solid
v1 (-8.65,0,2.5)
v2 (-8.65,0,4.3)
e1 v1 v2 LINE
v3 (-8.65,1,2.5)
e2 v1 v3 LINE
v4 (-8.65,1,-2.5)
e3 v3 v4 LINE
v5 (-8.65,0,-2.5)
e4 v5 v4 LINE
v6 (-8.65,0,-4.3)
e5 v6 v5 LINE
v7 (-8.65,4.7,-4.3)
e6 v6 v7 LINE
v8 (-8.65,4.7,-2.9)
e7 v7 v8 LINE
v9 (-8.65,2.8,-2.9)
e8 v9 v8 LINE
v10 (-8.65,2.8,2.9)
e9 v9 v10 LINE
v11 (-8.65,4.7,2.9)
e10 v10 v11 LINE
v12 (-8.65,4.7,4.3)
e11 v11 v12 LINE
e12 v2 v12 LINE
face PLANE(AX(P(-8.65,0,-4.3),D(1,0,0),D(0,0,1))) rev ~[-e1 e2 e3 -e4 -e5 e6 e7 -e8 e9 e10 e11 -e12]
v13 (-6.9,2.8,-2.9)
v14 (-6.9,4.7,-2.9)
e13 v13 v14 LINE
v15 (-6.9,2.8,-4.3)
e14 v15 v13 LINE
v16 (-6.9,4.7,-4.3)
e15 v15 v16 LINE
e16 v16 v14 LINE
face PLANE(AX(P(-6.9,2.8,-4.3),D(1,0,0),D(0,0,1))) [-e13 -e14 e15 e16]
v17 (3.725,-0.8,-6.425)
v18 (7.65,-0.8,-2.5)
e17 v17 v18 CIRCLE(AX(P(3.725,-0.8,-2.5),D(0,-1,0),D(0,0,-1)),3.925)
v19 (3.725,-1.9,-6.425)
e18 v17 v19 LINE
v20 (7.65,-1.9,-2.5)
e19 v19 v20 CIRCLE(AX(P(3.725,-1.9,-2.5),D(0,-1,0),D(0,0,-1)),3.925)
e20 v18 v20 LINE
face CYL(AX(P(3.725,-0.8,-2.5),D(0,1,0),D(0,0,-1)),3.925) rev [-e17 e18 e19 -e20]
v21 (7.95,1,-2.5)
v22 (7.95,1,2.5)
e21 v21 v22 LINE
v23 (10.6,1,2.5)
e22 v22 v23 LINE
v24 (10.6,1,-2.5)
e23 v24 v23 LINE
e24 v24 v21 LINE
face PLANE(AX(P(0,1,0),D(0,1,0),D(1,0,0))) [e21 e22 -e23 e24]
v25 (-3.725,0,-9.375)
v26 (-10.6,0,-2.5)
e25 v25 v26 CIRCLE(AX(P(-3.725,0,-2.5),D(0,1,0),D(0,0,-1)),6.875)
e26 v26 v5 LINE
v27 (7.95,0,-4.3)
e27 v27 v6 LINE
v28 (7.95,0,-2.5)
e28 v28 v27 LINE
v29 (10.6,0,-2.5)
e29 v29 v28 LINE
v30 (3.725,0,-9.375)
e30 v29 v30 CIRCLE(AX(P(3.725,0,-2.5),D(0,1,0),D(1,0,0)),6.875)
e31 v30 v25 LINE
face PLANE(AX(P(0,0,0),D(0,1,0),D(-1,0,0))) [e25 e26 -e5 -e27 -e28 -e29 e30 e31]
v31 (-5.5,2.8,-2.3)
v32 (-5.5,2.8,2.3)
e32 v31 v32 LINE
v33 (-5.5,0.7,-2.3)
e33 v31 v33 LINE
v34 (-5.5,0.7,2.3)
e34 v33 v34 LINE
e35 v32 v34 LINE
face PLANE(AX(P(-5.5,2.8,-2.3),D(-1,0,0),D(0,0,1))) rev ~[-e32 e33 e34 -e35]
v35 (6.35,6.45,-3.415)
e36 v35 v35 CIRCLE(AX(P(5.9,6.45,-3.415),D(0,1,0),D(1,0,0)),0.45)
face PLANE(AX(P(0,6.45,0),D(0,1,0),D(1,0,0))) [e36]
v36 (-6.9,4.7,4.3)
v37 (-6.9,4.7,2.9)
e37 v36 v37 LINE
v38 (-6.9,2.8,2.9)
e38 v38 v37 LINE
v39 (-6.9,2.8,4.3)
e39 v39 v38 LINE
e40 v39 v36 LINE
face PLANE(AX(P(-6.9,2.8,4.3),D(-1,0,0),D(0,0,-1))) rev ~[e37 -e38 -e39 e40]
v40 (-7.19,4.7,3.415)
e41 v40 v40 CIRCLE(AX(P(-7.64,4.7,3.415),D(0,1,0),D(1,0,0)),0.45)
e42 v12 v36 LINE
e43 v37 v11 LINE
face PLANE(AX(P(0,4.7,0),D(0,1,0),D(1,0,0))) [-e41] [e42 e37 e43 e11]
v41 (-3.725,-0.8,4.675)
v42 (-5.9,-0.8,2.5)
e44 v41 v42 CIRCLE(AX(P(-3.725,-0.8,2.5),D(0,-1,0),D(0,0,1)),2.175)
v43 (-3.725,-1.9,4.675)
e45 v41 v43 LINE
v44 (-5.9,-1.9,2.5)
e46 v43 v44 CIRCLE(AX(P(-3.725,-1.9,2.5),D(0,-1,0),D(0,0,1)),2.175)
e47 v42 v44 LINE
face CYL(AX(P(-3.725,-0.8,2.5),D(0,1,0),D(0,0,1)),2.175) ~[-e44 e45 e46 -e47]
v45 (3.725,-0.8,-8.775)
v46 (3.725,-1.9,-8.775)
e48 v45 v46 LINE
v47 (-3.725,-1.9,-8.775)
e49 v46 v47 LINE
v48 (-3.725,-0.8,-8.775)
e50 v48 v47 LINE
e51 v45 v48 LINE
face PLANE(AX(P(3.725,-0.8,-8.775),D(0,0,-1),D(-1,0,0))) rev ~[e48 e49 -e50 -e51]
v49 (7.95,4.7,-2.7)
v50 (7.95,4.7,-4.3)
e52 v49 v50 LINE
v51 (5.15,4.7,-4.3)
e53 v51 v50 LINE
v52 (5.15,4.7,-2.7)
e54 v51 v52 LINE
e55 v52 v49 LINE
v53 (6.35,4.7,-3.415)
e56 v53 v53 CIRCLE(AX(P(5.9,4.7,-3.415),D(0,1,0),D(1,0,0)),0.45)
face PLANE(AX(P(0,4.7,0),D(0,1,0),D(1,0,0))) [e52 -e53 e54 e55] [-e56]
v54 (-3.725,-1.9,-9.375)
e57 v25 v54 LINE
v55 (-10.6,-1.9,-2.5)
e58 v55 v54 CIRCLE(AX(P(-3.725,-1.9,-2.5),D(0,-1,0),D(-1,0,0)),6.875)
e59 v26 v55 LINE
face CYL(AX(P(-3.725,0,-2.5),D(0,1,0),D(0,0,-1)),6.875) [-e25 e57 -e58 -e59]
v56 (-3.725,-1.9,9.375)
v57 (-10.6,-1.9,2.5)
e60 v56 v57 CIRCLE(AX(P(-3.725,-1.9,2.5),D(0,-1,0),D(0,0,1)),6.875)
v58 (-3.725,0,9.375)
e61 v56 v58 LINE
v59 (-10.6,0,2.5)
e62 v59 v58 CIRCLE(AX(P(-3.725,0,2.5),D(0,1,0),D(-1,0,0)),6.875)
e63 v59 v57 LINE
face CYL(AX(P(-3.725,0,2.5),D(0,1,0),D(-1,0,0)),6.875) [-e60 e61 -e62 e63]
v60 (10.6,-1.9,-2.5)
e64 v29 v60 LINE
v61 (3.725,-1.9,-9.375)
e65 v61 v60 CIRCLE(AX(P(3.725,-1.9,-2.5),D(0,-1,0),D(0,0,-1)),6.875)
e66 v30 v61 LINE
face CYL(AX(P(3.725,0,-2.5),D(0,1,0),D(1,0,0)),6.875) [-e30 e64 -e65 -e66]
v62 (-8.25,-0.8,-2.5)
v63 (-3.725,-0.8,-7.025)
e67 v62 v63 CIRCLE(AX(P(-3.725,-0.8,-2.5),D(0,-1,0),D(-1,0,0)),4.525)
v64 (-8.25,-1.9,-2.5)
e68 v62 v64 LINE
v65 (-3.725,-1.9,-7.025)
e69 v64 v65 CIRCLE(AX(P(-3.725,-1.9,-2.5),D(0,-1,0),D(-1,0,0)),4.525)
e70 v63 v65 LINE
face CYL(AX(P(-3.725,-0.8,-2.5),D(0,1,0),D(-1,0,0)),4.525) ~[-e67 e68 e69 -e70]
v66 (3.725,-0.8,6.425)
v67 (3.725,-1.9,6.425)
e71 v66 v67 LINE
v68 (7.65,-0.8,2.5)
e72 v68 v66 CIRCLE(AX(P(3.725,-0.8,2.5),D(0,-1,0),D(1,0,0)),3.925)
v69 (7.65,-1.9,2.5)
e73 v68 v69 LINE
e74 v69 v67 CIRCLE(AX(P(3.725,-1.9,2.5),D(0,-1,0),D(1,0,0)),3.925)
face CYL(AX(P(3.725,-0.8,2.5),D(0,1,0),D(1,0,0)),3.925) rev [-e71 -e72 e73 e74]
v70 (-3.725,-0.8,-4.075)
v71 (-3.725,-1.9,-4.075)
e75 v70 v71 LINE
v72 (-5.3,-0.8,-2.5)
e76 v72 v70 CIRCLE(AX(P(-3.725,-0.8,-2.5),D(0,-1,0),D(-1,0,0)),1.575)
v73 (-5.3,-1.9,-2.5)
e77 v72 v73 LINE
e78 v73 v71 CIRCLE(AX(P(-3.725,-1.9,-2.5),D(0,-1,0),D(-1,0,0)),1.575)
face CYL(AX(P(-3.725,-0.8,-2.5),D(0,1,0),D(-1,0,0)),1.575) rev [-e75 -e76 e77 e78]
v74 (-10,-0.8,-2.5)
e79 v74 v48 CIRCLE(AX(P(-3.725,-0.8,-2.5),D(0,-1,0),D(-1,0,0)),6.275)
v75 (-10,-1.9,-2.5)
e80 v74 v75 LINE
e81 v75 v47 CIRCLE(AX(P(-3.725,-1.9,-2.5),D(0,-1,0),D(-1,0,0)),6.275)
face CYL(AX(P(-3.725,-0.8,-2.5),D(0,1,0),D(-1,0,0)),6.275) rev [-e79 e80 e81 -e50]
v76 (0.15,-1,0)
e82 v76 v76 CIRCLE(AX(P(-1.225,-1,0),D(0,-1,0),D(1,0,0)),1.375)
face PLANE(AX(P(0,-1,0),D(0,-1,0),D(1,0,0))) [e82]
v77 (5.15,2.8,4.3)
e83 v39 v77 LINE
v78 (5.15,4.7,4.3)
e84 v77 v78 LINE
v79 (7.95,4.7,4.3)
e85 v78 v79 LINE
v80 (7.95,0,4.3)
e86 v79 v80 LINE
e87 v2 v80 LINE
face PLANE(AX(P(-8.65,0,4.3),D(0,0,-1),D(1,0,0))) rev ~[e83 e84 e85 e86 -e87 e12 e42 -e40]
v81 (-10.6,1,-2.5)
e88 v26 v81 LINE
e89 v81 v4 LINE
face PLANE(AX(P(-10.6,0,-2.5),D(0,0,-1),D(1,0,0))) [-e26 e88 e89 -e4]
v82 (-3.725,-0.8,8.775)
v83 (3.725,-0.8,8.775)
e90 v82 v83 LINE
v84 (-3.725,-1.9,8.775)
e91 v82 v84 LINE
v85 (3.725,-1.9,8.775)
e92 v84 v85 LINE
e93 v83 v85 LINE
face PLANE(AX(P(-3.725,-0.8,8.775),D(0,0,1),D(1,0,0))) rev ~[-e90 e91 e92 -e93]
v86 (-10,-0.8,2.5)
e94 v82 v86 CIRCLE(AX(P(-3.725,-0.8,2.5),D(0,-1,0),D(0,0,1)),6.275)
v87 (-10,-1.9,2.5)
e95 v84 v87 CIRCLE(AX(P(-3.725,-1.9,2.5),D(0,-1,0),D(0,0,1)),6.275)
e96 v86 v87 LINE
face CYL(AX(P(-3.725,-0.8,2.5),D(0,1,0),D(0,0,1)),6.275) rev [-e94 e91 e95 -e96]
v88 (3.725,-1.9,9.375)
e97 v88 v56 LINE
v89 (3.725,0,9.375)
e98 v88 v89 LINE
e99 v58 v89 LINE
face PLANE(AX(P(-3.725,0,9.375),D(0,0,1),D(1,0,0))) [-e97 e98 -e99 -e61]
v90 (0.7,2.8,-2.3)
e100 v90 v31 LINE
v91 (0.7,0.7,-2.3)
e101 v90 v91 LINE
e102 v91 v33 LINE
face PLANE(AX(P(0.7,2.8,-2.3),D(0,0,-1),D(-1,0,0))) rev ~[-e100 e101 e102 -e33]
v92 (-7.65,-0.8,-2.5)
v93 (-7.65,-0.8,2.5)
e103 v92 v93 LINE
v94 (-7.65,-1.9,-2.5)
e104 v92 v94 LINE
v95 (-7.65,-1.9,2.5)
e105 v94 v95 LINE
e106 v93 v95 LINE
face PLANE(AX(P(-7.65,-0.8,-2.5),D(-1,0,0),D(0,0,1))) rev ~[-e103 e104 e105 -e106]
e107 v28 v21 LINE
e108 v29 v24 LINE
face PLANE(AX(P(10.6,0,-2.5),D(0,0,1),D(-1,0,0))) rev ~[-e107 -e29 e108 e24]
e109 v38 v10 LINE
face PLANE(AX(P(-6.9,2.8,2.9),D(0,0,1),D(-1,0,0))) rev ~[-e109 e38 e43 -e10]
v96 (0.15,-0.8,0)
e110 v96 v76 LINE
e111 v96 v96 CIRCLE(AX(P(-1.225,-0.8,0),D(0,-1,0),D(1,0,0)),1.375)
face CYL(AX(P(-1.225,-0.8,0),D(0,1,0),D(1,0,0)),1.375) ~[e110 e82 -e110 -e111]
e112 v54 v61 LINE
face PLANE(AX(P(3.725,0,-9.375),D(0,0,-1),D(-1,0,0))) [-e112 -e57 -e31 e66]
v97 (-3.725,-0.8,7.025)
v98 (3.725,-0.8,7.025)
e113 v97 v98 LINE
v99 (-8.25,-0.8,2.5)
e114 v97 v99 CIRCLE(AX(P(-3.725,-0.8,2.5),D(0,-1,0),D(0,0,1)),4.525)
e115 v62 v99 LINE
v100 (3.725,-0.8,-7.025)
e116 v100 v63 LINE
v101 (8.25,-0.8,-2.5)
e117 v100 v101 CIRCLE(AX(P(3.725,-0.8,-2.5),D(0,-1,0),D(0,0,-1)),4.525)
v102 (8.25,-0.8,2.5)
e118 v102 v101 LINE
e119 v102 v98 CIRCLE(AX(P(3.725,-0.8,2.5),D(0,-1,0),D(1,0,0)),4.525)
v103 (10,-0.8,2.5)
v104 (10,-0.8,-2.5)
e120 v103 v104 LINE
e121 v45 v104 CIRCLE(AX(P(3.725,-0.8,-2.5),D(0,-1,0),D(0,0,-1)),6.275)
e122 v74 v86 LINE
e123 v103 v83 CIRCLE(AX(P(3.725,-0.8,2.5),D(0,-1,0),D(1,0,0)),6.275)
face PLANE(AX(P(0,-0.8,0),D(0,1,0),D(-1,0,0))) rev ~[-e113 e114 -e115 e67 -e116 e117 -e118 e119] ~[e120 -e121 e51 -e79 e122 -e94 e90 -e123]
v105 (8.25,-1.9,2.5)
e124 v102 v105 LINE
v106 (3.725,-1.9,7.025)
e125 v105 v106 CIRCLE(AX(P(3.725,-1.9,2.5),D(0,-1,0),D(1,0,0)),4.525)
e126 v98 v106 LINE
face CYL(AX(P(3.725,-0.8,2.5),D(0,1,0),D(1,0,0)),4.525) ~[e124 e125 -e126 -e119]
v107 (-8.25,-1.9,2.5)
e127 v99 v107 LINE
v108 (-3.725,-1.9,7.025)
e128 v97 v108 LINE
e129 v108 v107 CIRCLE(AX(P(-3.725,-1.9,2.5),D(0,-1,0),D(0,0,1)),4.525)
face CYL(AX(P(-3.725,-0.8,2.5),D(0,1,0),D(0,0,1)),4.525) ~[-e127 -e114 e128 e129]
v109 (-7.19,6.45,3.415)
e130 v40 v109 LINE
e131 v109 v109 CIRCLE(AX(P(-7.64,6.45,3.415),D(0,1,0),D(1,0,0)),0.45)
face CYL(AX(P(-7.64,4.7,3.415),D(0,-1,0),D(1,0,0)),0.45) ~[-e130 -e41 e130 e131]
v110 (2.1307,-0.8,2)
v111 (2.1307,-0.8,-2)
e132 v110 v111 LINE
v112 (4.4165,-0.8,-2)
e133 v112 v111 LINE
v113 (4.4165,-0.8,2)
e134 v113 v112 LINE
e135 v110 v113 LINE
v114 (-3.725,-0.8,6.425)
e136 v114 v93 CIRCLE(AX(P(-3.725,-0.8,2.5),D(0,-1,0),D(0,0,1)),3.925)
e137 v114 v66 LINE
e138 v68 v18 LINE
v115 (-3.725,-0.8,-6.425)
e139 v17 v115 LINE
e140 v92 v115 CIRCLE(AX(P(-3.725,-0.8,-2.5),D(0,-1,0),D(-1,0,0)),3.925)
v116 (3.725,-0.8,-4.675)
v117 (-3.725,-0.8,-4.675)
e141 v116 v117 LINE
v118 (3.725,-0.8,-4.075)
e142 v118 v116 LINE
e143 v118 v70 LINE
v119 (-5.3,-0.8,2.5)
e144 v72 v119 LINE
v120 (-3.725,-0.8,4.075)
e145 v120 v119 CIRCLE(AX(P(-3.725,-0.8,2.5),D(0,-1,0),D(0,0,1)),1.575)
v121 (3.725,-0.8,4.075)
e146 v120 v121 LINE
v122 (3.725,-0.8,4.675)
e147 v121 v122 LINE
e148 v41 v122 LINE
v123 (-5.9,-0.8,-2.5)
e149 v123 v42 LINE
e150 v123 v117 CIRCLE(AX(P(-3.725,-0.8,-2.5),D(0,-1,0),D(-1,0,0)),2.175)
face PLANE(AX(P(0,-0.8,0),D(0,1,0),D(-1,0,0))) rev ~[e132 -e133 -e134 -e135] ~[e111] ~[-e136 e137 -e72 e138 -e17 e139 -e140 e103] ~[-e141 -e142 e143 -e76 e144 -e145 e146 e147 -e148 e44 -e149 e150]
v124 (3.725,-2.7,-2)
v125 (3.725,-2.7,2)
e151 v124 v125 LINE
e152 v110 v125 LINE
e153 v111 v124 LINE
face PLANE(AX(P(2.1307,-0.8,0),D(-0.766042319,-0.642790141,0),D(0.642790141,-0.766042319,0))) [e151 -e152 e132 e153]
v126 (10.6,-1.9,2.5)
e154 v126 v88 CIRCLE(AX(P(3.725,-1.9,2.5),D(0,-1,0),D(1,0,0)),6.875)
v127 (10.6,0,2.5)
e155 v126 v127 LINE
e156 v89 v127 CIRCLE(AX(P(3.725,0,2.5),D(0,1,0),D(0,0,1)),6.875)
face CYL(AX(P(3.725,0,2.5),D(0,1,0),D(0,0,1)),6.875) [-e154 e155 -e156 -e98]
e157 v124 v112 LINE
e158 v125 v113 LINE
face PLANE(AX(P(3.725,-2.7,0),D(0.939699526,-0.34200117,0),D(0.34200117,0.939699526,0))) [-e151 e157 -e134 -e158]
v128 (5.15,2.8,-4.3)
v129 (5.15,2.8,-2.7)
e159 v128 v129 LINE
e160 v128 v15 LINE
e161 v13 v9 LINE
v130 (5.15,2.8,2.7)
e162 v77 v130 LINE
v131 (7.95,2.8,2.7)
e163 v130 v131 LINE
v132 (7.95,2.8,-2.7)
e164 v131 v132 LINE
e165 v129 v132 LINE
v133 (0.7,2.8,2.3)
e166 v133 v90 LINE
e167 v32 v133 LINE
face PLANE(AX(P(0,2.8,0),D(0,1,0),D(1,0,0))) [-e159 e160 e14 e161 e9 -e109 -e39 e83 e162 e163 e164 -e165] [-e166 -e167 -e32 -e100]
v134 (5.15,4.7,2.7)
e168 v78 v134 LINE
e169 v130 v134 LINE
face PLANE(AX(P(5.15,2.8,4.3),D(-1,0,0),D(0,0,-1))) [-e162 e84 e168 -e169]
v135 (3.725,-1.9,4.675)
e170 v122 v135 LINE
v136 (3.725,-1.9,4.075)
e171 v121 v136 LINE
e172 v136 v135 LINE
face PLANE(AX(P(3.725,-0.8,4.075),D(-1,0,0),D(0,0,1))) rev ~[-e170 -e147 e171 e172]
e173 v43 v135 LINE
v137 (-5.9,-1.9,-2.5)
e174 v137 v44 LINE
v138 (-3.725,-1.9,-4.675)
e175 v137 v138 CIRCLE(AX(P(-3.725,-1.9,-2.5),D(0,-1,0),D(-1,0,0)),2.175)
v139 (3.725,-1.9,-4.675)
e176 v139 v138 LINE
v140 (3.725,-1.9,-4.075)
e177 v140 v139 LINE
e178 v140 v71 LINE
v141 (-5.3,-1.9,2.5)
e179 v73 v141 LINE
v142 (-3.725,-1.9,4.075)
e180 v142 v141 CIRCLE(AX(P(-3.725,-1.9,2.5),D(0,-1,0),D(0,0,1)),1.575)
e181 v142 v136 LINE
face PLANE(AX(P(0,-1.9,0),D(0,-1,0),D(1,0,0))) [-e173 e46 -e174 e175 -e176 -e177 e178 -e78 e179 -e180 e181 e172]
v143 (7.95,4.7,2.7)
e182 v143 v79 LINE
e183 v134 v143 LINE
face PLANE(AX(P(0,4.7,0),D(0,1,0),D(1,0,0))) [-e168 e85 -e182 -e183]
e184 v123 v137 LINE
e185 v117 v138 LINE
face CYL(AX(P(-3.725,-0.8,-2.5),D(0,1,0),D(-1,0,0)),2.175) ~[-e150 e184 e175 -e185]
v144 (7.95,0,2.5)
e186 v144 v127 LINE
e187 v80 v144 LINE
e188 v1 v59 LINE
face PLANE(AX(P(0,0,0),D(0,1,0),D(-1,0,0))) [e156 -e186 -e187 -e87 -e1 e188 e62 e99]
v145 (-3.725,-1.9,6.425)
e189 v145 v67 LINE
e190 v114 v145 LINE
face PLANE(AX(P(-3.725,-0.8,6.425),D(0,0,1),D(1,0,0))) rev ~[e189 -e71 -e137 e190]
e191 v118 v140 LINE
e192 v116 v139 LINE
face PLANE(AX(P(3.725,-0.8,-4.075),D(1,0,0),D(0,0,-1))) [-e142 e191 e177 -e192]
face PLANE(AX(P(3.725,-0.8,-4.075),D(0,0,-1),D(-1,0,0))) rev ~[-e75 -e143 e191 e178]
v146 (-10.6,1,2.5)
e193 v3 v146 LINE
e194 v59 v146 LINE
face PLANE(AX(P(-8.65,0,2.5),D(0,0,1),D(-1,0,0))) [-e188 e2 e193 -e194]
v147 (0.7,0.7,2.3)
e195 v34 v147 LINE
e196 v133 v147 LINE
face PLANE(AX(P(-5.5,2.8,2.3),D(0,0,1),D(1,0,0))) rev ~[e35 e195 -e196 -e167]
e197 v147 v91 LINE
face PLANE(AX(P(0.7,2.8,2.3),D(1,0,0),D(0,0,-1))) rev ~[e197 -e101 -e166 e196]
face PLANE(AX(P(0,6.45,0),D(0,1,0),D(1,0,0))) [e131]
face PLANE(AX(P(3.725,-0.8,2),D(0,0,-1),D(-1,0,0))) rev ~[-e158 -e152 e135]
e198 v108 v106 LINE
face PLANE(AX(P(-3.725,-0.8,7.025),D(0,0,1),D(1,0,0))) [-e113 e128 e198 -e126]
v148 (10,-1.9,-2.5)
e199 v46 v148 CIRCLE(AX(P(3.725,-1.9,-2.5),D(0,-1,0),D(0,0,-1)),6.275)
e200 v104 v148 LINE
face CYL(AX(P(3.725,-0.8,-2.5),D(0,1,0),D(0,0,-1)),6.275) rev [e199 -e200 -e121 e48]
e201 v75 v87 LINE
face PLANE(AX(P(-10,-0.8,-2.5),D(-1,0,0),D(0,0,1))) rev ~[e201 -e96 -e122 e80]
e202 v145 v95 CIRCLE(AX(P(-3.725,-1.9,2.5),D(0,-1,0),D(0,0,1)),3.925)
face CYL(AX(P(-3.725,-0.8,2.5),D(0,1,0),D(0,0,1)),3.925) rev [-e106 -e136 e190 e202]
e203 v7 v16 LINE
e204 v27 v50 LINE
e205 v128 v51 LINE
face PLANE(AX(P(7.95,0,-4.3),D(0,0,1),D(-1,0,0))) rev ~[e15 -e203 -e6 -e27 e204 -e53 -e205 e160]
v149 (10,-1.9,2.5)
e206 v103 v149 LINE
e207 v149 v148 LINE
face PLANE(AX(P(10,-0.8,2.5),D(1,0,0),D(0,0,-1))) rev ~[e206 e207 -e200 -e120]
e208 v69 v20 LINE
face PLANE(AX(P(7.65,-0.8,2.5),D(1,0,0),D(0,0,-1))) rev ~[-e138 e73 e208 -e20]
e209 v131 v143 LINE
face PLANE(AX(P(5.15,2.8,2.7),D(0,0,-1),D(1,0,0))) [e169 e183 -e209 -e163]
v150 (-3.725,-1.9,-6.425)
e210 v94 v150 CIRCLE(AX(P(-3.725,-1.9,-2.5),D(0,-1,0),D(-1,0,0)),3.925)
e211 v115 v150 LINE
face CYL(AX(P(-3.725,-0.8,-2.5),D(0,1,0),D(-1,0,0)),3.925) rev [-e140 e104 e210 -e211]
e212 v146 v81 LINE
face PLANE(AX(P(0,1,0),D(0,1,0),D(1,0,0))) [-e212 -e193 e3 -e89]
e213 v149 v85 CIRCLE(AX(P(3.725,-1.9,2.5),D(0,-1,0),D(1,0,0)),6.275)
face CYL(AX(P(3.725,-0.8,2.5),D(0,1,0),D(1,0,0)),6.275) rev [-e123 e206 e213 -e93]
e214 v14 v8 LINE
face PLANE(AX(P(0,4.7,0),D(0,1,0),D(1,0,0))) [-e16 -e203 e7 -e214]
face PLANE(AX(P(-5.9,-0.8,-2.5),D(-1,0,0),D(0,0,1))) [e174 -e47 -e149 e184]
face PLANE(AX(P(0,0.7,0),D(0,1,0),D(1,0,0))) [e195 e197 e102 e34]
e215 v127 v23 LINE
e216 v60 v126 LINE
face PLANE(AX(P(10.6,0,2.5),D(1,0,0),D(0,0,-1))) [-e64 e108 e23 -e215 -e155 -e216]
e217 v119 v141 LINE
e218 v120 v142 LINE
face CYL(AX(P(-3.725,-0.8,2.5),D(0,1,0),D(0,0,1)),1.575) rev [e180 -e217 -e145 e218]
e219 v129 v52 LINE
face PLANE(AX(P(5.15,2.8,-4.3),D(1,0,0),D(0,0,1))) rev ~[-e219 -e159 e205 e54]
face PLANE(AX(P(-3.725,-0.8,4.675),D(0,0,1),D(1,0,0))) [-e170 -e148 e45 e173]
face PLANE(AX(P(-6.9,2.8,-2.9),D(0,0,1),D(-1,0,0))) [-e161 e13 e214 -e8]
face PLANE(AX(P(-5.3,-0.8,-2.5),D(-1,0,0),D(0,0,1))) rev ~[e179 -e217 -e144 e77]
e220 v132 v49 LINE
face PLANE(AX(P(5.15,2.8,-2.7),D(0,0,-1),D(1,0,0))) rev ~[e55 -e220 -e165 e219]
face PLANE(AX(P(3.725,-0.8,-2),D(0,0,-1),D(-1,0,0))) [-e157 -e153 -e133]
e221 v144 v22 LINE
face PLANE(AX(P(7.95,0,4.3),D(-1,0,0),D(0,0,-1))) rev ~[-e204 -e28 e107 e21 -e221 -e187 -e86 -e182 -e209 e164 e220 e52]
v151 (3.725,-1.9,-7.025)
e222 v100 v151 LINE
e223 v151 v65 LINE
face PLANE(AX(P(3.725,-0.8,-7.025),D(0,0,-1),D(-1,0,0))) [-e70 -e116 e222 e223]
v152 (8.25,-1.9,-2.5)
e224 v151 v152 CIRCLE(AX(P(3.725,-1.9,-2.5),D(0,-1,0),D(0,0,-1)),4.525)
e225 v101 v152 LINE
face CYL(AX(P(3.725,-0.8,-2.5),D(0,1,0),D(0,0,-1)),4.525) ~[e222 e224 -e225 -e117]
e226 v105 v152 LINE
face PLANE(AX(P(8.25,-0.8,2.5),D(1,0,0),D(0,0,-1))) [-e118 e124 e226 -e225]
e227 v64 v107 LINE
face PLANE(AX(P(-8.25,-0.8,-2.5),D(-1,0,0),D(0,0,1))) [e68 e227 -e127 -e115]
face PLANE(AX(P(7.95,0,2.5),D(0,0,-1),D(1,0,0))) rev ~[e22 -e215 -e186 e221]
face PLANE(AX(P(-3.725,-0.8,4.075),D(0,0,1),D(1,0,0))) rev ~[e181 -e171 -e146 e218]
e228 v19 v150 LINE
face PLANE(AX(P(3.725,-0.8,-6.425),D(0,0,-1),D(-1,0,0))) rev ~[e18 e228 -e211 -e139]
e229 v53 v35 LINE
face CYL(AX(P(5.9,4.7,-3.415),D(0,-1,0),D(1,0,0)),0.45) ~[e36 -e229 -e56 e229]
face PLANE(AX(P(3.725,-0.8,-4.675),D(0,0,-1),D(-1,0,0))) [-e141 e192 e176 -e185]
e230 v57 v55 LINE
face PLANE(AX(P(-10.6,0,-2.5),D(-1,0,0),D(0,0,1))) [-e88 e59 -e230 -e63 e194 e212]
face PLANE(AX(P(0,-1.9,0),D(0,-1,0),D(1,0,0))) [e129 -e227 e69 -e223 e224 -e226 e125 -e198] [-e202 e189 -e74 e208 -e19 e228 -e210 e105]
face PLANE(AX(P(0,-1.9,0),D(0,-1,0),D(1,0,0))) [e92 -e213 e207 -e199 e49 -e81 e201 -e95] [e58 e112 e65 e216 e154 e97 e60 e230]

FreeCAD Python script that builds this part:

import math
import FreeCAD as App
import Part
import Sketcher
Q = App.Units.Quantity


def add_polygon(sketch, points):
    """Adds a closed chain of lines whose ends are joined by coincident constraints."""
    first, n = sketch.GeometryCount, len(points)
    for a, b in zip(points, points[1:] + points[:1]):
        sketch.addGeometry(Part.LineSegment(App.Vector(*a, 0), App.Vector(*b, 0)), False)
    for i in range(n):
        sketch.addConstraint(Sketcher.Constraint("Coincident", first + i, 2, first + (i + 1) % n, 1))

doc = App.newDocument("Part")
body = doc.addObject("PartDesign::Body", "Body")

# Sketch on XZ plane
sketch1 = body.newObject("Sketcher::SketchObject", "Sketch")
sketch1.AttachmentSupport = (doc.getObject("XZ_Plane"), [""])
sketch1.MapMode = "FlatFace"
sketch1.addGeometry(Part.ArcOfCircle(Part.Circle(App.Vector(-3.725, 2.5, 0), App.Vector(0, 0, 1), 6.875), math.radians(90), math.radians(180)), False)
sketch1.addGeometry(Part.LineSegment(App.Vector(-3.725, 9.375, 0), App.Vector(3.725, 9.375, 0)), False)
sketch1.addGeometry(Part.ArcOfCircle(Part.Circle(App.Vector(3.725, 2.5, 0), App.Vector(0, 0, 1), 6.875), math.radians(0), math.radians(90)), False)
sketch1.addGeometry(Part.LineSegment(App.Vector(10.6, 2.5, 0), App.Vector(10.6, -2.5, 0)), False)
sketch1.addGeometry(Part.ArcOfCircle(Part.Circle(App.Vector(3.725, -2.5, 0), App.Vector(0, 0, 1), 6.875), math.radians(-90), math.radians(0)), False)
sketch1.addGeometry(Part.LineSegment(App.Vector(3.725, -9.375, 0), App.Vector(-3.725, -9.375, 0)), False)
sketch1.addGeometry(Part.ArcOfCircle(Part.Circle(App.Vector(-3.725, -2.5, 0), App.Vector(0, 0, 1), 6.875), math.radians(180), math.radians(270)), False)
sketch1.addGeometry(Part.LineSegment(App.Vector(-10.6, -2.5, 0), App.Vector(-10.6, 2.5, 0)), False)
sketch1.addConstraint(Sketcher.Constraint("Tangent", 0, 1, 1, 1))
sketch1.addConstraint(Sketcher.Constraint("Tangent", 1, 2, 2, 2))
sketch1.addConstraint(Sketcher.Constraint("Tangent", 2, 1, 3, 1))
sketch1.addConstraint(Sketcher.Constraint("Tangent", 3, 2, 4, 2))
sketch1.addConstraint(Sketcher.Constraint("Tangent", 4, 1, 5, 1))
sketch1.addConstraint(Sketcher.Constraint("Tangent", 5, 2, 6, 2))
sketch1.addConstraint(Sketcher.Constraint("Tangent", 6, 1, 7, 1))
sketch1.addConstraint(Sketcher.Constraint("Tangent", 7, 2, 0, 2))
sketch1.addConstraint(Sketcher.Constraint("Horizontal", 1))
sketch1.addConstraint(Sketcher.Constraint("Vertical", 3))
sketch1.addConstraint(Sketcher.Constraint("Horizontal", 5))
sketch1.addConstraint(Sketcher.Constraint("Vertical", 7))
sketch1.addConstraint(Sketcher.Constraint("Equal", 0, 2))
sketch1.addConstraint(Sketcher.Constraint("Equal", 2, 4))
sketch1.addConstraint(Sketcher.Constraint("Equal", 4, 6))
sketch1.addConstraint(Sketcher.Constraint("Symmetric", 0, 3, 4, 3, -1, 1))
sketch1.addConstraint(Sketcher.Constraint("Radius", 0, Q("6.875 mm")))
sketch1.addConstraint(Sketcher.Constraint("DistanceY", 3, 2, 3, 1, Q("5 mm")))
sketch1.addConstraint(Sketcher.Constraint("DistanceX", 1, 1, 1, 2, Q("7.45 mm")))
pad1 = body.newObject("PartDesign::Pad", "Pad")
pad1.Profile = sketch1
pad1.Length = 0.8

# Sketch on XZ plane
sketch2 = body.newObject("Sketcher::SketchObject", "Sketch001")
sketch2.AttachmentSupport = (doc.getObject("XZ_Plane"), [""])
sketch2.MapMode = "FlatFace"
sketch2.AttachmentOffset = App.Placement(App.Vector(0, 0, 0.8), App.Rotation())
sketch2.addGeometry(Part.ArcOfCircle(Part.Circle(App.Vector(3.725, -2.5, 0), App.Vector(0, 0, 1), 6.875), math.radians(-90), math.radians(0)), False)
sketch2.addGeometry(Part.LineSegment(App.Vector(10.6, -2.5, 0), App.Vector(10.6, 2.5, 0)), False)
sketch2.addGeometry(Part.ArcOfCircle(Part.Circle(App.Vector(3.725, 2.5, 0), App.Vector(0, 0, 1), 6.875), math.radians(0), math.radians(90)), False)
sketch2.addGeometry(Part.LineSegment(App.Vector(3.725, 9.375, 0), App.Vector(-3.725, 9.375, 0)), False)
sketch2.addGeometry(Part.ArcOfCircle(Part.Circle(App.Vector(-3.725, 2.5, 0), App.Vector(0, 0, 1), 6.875), math.radians(90), math.radians(180)), False)
sketch2.addGeometry(Part.LineSegment(App.Vector(-10.6, 2.5, 0), App.Vector(-10.6, -2.5, 0)), False)
sketch2.addGeometry(Part.ArcOfCircle(Part.Circle(App.Vector(-3.725, -2.5, 0), App.Vector(0, 0, 1), 6.875), math.radians(180), math.radians(270)), False)
sketch2.addGeometry(Part.LineSegment(App.Vector(-3.725, -9.375, 0), App.Vector(3.725, -9.375, 0)), False)
sketch2.addGeometry(Part.ArcOfCircle(Part.Circle(App.Vector(3.725, 2.5, 0), App.Vector(0, 0, 1), 6.275), math.radians(0), math.radians(90)), False)
sketch2.addGeometry(Part.LineSegment(App.Vector(10, 2.5, 0), App.Vector(10, -2.5, 0)), False)
sketch2.addGeometry(Part.ArcOfCircle(Part.Circle(App.Vector(3.725, -2.5, 0), App.Vector(0, 0, 1), 6.275), math.radians(-90), math.radians(0)), False)
sketch2.addGeometry(Part.LineSegment(App.Vector(3.725, -8.775, 0), App.Vector(-3.725, -8.775, 0)), False)
sketch2.addGeometry(Part.ArcOfCircle(Part.Circle(App.Vector(-3.725, -2.5, 0), App.Vector(0, 0, 1), 6.275), math.radians(180), math.radians(270)), False)
sketch2.addGeometry(Part.LineSegment(App.Vector(-10, -2.5, 0), App.Vector(-10, 2.5, 0)), False)
sketch2.addGeometry(Part.ArcOfCircle(Part.Circle(App.Vector(-3.725, 2.5, 0), App.Vector(0, 0, 1), 6.275), math.radians(90), math.radians(180)), False)
sketch2.addGeometry(Part.LineSegment(App.Vector(-3.725, 8.775, 0), App.Vector(3.725, 8.775, 0)), False)
sketch2.addGeometry(Part.LineSegment(App.Vector(8.25, -2.5, 0), App.Vector(8.25, 2.5, 0)), False)
sketch2.addGeometry(Part.ArcOfCircle(Part.Circle(App.Vector(3.725, 2.5, 0), App.Vector(0, 0, 1), 4.525), math.radians(0), math.radians(90)), False)
sketch2.addGeometry(Part.LineSegment(App.Vector(3.725, 7.025, 0), App.Vector(-3.725, 7.025, 0)), False)
sketch2.addGeometry(Part.ArcOfCircle(Part.Circle(App.Vector(-3.725, 2.5, 0), App.Vector(0, 0, 1), 4.525), math.radians(90), math.radians(180)), False)
sketch2.addGeometry(Part.LineSegment(App.Vector(-8.25, 2.5, 0), App.Vector(-8.25, -2.5, 0)), False)
sketch2.addGeometry(Part.ArcOfCircle(Part.Circle(App.Vector(-3.725, -2.5, 0), App.Vector(0, 0, 1), 4.525), math.radians(180), math.radians(270)), False)
sketch2.addGeometry(Part.LineSegment(App.Vector(-3.725, -7.025, 0), App.Vector(3.725, -7.025, 0)), False)
sketch2.addGeometry(Part.ArcOfCircle(Part.Circle(App.Vector(3.725, -2.5, 0), App.Vector(0, 0, 1), 4.525), math.radians(-90), math.radians(0)), False)
sketch2.addGeometry(Part.ArcOfCircle(Part.Circle(App.Vector(3.725, 2.5, 0), App.Vector(0, 0, 1), 3.925), math.radians(0), math.radians(90)), False)
sketch2.addGeometry(Part.LineSegment(App.Vector(7.65, 2.5, 0), App.Vector(7.65, -2.5, 0)), False)
sketch2.addGeometry(Part.ArcOfCircle(Part.Circle(App.Vector(3.725, -2.5, 0), App.Vector(0, 0, 1), 3.925), math.radians(-90), math.radians(0)), False)
sketch2.addGeometry(Part.LineSegment(App.Vector(3.725, -6.425, 0), App.Vector(-3.725, -6.425, 0)), False)
sketch2.addGeometry(Part.ArcOfCircle(Part.Circle(App.Vector(-3.725, -2.5, 0), App.Vector(0, 0, 1), 3.925), math.radians(180), math.radians(270)), False)
sketch2.addGeometry(Part.LineSegment(App.Vector(-7.65, -2.5, 0), App.Vector(-7.65, 2.5, 0)), False)
sketch2.addGeometry(Part.ArcOfCircle(Part.Circle(App.Vector(-3.725, 2.5, 0), App.Vector(0, 0, 1), 3.925), math.radians(90), math.radians(180)), False)
sketch2.addGeometry(Part.LineSegment(App.Vector(-3.725, 6.425, 0), App.Vector(3.725, 6.425, 0)), False)
sketch2.addGeometry(Part.LineSegment(App.Vector(3.725, 4.075, 0), App.Vector(3.725, 4.675, 0)), False)
sketch2.addGeometry(Part.LineSegment(App.Vector(3.725, 4.675, 0), App.Vector(-3.725, 4.675, 0)), False)
sketch2.addGeometry(Part.ArcOfCircle(Part.Circle(App.Vector(-3.725, 2.5, 0), App.Vector(0, 0, 1), 2.175), math.radians(90), math.radians(180)), False)
sketch2.addGeometry(Part.LineSegment(App.Vector(-5.9, 2.5, 0), App.Vector(-5.9, -2.5, 0)), False)
sketch2.addGeometry(Part.ArcOfCircle(Part.Circle(App.Vector(-3.725, -2.5, 0), App.Vector(0, 0, 1), 2.175), math.radians(180), math.radians(270)), False)
sketch2.addGeometry(Part.LineSegment(App.Vector(-3.725, -4.675, 0), App.Vector(3.725, -4.675, 0)), False)
sketch2.addGeometry(Part.LineSegment(App.Vector(3.725, -4.675, 0), App.Vector(3.725, -4.075, 0)), False)
sketch2.addGeometry(Part.LineSegment(App.Vector(3.725, -4.075, 0), App.Vector(-3.725, -4.075, 0)), False)
sketch2.addGeometry(Part.ArcOfCircle(Part.Circle(App.Vector(-3.725, -2.5, 0), App.Vector(0, 0, 1), 1.575), math.radians(180), math.radians(270)), False)
sketch2.addGeometry(Part.LineSegment(App.Vector(-5.3, -2.5, 0), App.Vector(-5.3, 2.5, 0)), False)
sketch2.addGeometry(Part.ArcOfCircle(Part.Circle(App.Vector(-3.725, 2.5, 0), App.Vector(0, 0, 1), 1.575), math.radians(90), math.radians(180)), False)
sketch2.addGeometry(Part.LineSegment(App.Vector(-3.725, 4.075, 0), App.Vector(3.725, 4.075, 0)), False)
sketch2.addConstraint(Sketcher.Constraint("Tangent", 0, 2, 1, 1))
sketch2.addConstraint(Sketcher.Constraint("Tangent", 1, 2, 2, 1))
sketch2.addConstraint(Sketcher.Constraint("Tangent", 2, 2, 3, 1))
sketch2.addConstraint(Sketcher.Constraint("Tangent", 3, 2, 4, 1))
sketch2.addConstraint(Sketcher.Constraint("Tangent", 4, 2, 5, 1))
sketch2.addConstraint(Sketcher.Constraint("Tangent", 5, 2, 6, 1))
sketch2.addConstraint(Sketcher.Constraint("Tangent", 6, 2, 7, 1))
sketch2.addConstraint(Sketcher.Constraint("Tangent", 7, 2, 0, 1))
sketch2.addConstraint(Sketcher.Constraint("Tangent", 8, 1, 9, 1))
sketch2.addConstraint(Sketcher.Constraint("Tangent", 9, 2, 10, 2))
sketch2.addConstraint(Sketcher.Constraint("Tangent", 10, 1, 11, 1))
sketch2.addConstraint(Sketcher.Constraint("Tangent", 11, 2, 12, 2))
sketch2.addConstraint(Sketcher.Constraint("Tangent", 12, 1, 13, 1))
sketch2.addConstraint(Sketcher.Constraint("Tangent", 13, 2, 14, 2))
sketch2.addConstraint(Sketcher.Constraint("Tangent", 14, 1, 15, 1))
sketch2.addConstraint(Sketcher.Constraint("Tangent", 15, 2, 8, 2))
sketch2.addConstraint(Sketcher.Constraint("Tangent", 16, 2, 17, 1))
sketch2.addConstraint(Sketcher.Constraint("Tangent", 17, 2, 18, 1))
sketch2.addConstraint(Sketcher.Constraint("Tangent", 18, 2, 19, 1))
sketch2.addConstraint(Sketcher.Constraint("Tangent", 19, 2, 20, 1))
sketch2.addConstraint(Sketcher.Constraint("Tangent", 20, 2, 21, 1))
sketch2.addConstraint(Sketcher.Constraint("Tangent", 21, 2, 22, 1))
sketch2.addConstraint(Sketcher.Constraint("Tangent", 22, 2, 23, 1))
sketch2.addConstraint(Sketcher.Constraint("Tangent", 23, 2, 16, 1))
sketch2.addConstraint(Sketcher.Constraint("Tangent", 24, 1, 25, 1))
sketch2.addConstraint(Sketcher.Constraint("Tangent", 25, 2, 26, 2))
sketch2.addConstraint(Sketcher.Constraint("Tangent", 26, 1, 27, 1))
sketch2.addConstraint(Sketcher.Constraint("Tangent", 27, 2, 28, 2))
sketch2.addConstraint(Sketcher.Constraint("Tangent", 28, 1, 29, 1))
sketch2.addConstraint(Sketcher.Constraint("Tangent", 29, 2, 30, 2))
sketch2.addConstraint(Sketcher.Constraint("Tangent", 30, 1, 31, 1))
sketch2.addConstraint(Sketcher.Constraint("Tangent", 31, 2, 24, 2))
sketch2.addConstraint(Sketcher.Constraint("Coincident", 32, 2, 33, 1))
sketch2.addConstraint(Sketcher.Constraint("Tangent", 33, 2, 34, 1))
sketch2.addConstraint(Sketcher.Constraint("Tangent", 34, 2, 35, 1))
sketch2.addConstraint(Sketcher.Constraint("Tangent", 35, 2, 36, 1))
sketch2.addConstraint(Sketcher.Constraint("Tangent", 36, 2, 37, 1))
sketch2.addConstraint(Sketcher.Constraint("Coincident", 37, 2, 38, 1))
sketch2.addConstraint(Sketcher.Constraint("Coincident", 38, 2, 39, 1))
sketch2.addConstraint(Sketcher.Constraint("Tangent", 39, 2, 40, 2))
sketch2.addConstraint(Sketcher.Constraint("Tangent", 40, 1, 41, 1))
sketch2.addConstraint(Sketcher.Constraint("Tangent", 41, 2, 42, 2))
sketch2.addConstraint(Sketcher.Constraint("Tangent", 42, 1, 43, 1))
sketch2.addConstraint(Sketcher.Constraint("Coincident", 43, 2, 32, 1))
sketch2.addConstraint(Sketcher.Constraint("Vertical", 1))
sketch2.addConstraint(Sketcher.Constraint("Horizontal", 3))
sketch2.addConstraint(Sketcher.Constraint("Vertical", 5))
sketch2.addConstraint(Sketcher.Constraint("Horizontal", 7))
sketch2.addConstraint(Sketcher.Constraint("Vertical", 9))
sketch2.addConstraint(Sketcher.Constraint("Horizontal", 11))
sketch2.addConstraint(Sketcher.Constraint("Vertical", 13))
sketch2.addConstraint(Sketcher.Constraint("Horizontal", 15))
sketch2.addConstraint(Sketcher.Constraint("Vertical", 16))
sketch2.addConstraint(Sketcher.Constraint("Horizontal", 18))
sketch2.addConstraint(Sketcher.Constraint("Vertical", 20))
sketch2.addConstraint(Sketcher.Constraint("Horizontal", 22))
sketch2.addConstraint(Sketcher.Constraint("Vertical", 25))
sketch2.addConstraint(Sketcher.Constraint("Horizontal", 27))
sketch2.addConstraint(Sketcher.Constraint("Vertical", 29))
sketch2.addConstraint(Sketcher.Constraint("Horizontal", 31))
sketch2.addConstraint(Sketcher.Constraint("Vertical", 32))
sketch2.addConstraint(Sketcher.Constraint("Horizontal", 33))
sketch2.addConstraint(Sketcher.Constraint("Vertical", 35))
sketch2.addConstraint(Sketcher.Constraint("Horizontal", 37))
sketch2.addConstraint(Sketcher.Constraint("Vertical", 38))
sketch2.addConstraint(Sketcher.Constraint("Horizontal", 39))
sketch2.addConstraint(Sketcher.Constraint("Vertical", 41))
sketch2.addConstraint(Sketcher.Constraint("Horizontal", 43))
sketch2.addConstraint(Sketcher.Constraint("Coincident", 8, 3, 2, 3))
sketch2.addConstraint(Sketcher.Constraint("Coincident", 10, 3, 0, 3))
sketch2.addConstraint(Sketcher.Constraint("Coincident", 12, 3, 6, 3))
sketch2.addConstraint(Sketcher.Constraint("Coincident", 17, 3, 2, 3))
sketch2.addConstraint(Sketcher.Constraint("Coincident", 19, 3, 4, 3))
sketch2.addConstraint(Sketcher.Constraint("Coincident", 21, 3, 6, 3))
sketch2.addConstraint(Sketcher.Constraint("Coincident", 24, 3, 2, 3))
sketch2.addConstraint(Sketcher.Constraint("Coincident", 26, 3, 0, 3))
sketch2.addConstraint(Sketcher.Constraint("Coincident", 28, 3, 6, 3))
sketch2.addConstraint(Sketcher.Constraint("Coincident", 34, 3, 4, 3))
sketch2.addConstraint(Sketcher.Constraint("Coincident", 36, 3, 6, 3))
sketch2.addConstraint(Sketcher.Constraint("Coincident", 40, 3, 6, 3))
sketch2.addConstraint(Sketcher.Constraint("Coincident", 42, 3, 4, 3))
sketch2.addConstraint(Sketcher.Constraint("Equal", 0, 2))
sketch2.addConstraint(Sketcher.Constraint("Equal", 2, 4))
sketch2.addConstraint(Sketcher.Constraint("Equal", 4, 6))
sketch2.addConstraint(Sketcher.Constraint("Equal", 12, 14))
sketch2.addConstraint(Sketcher.Constraint("Equal", 21, 23))
sketch2.addConstraint(Sketcher.Constraint("Equal", 28, 30))
sketch2.addConstraint(Sketcher.Constraint("Symmetric", 0, 3, 4, 3, -1, 1))
sketch2.addConstraint(Sketcher.Constraint("Vertical", 31, 2, 32, 2))
sketch2.addConstraint(Sketcher.Constraint("Vertical", 32, 2, 37, 2))
sketch2.addConstraint(Sketcher.Constraint("DistanceY", 32, 1, 32, 2, Q("0.6 mm")))
sketch2.addConstraint(Sketcher.Constraint("DistanceY", 1, 1, 1, 2, Q("5 mm")))
sketch2.addConstraint(Sketcher.Constraint("DistanceX", -1, 1, 8, 1, Q("10 mm")))
sketch2.addConstraint(Sketcher.Constraint("Radius", 0, Q("6.875 mm")))
sketch2.addConstraint(Sketcher.Constraint("Radius", 8, Q("6.275 mm")))
sketch2.addConstraint(Sketcher.Constraint("Radius", 17, Q("4.525 mm")))
sketch2.addConstraint(Sketcher.Constraint("Radius", 24, Q("3.925 mm")))
sketch2.addConstraint(Sketcher.Constraint("Radius", 34, Q("2.175 mm")))
pad2 = body.newObject("PartDesign::Pad", "Pad001")
pad2.Profile = sketch2
pad2.Length = 1.1

# Sketch on XZ plane
sketch3 = body.newObject("Sketcher::SketchObject", "Sketch002")
sketch3.AttachmentSupport = (doc.getObject("XZ_Plane"), [""])
sketch3.MapMode = "FlatFace"
add_polygon(sketch3, [(7.95, 4.3), (7.95, -4.3), (-8.65, -4.3), (-8.65, 4.3)])  # lines 0-3
sketch3.addConstraint(Sketcher.Constraint("Vertical", 0))
sketch3.addConstraint(Sketcher.Constraint("Horizontal", 1))
sketch3.addConstraint(Sketcher.Constraint("Vertical", 2))
sketch3.addConstraint(Sketcher.Constraint("Horizontal", 3))
sketch3.addConstraint(Sketcher.Constraint("DistanceX", 1, 2, 1, 1, Q("16.6 mm")))
sketch3.addConstraint(Sketcher.Constraint("DistanceY", 0, 2, 0, 1, Q("8.6 mm")))
sketch3.addConstraint(Sketcher.Constraint("DistanceY", 0, 2, -1, 1, Q("4.3 mm")))
sketch3.addConstraint(Sketcher.Constraint("DistanceX", -1, 1, 0, 2, Q("7.95 mm")))
pad3 = body.newObject("PartDesign::Pad", "Pad002")
pad3.Profile = sketch3
pad3.Length = 2.8
pad3.Reversed = True

# Sketch on XZ plane
sketch4 = body.newObject("Sketcher::SketchObject", "Sketch003")
sketch4.AttachmentSupport = (doc.getObject("XZ_Plane"), [""])
sketch4.MapMode = "FlatFace"
sketch4.AttachmentOffset = App.Placement(App.Vector(0, 0, -2.8), App.Rotation())
add_polygon(sketch4, [(0.7, 2.3), (0.7, -2.3), (-5.5, -2.3), (-5.5, 2.3)])  # lines 0-3
sketch4.addConstraint(Sketcher.Constraint("Vertical", 0))
sketch4.addConstraint(Sketcher.Constraint("Horizontal", 1))
sketch4.addConstraint(Sketcher.Constraint("Vertical", 2))
sketch4.addConstraint(Sketcher.Constraint("Horizontal", 3))
sketch4.addConstraint(Sketcher.Constraint("DistanceX", 1, 2, 1, 1, Q("6.2 mm")))
sketch4.addConstraint(Sketcher.Constraint("DistanceY", 0, 2, 0, 1, Q("4.6 mm")))
sketch4.addConstraint(Sketcher.Constraint("DistanceX", -1, 1, 0, 2, Q("0.7 mm")))
sketch4.addConstraint(Sketcher.Constraint("DistanceY", 0, 2, -1, 1, Q("2.3 mm")))
pocket1 = body.newObject("PartDesign::Pocket", "Pocket")
pocket1.Profile = sketch4
pocket1.Length = 2.1
pocket1.Reversed = True

# Sketch on XZ plane
sketch5 = body.newObject("Sketcher::SketchObject", "Sketch004")
sketch5.AttachmentSupport = (doc.getObject("XZ_Plane"), [""])
sketch5.MapMode = "FlatFace"
sketch5.AttachmentOffset = App.Placement(App.Vector(0, 0, -2.8), App.Rotation())
add_polygon(sketch5, [(7.95, -4.3), (5.15, -4.3), (5.15, -2.7), (7.95, -2.7)])  # lines 0-3
add_polygon(sketch5, [(5.15, 2.7), (5.15, 4.3), (7.95, 4.3), (7.95, 2.7)])  # lines 4-7
add_polygon(sketch5, [(-6.9, 2.9), (-8.65, 2.9), (-8.65, 4.3), (-6.9, 4.3)])  # lines 8-11
add_polygon(sketch5, [(-6.9, -4.3), (-8.65, -4.3), (-8.65, -2.9), (-6.9, -2.9)])  # lines 12-15
sketch5.addConstraint(Sketcher.Constraint("Horizontal", 0))
sketch5.addConstraint(Sketcher.Constraint("Vertical", 1))
sketch5.addConstraint(Sketcher.Constraint("Horizontal", 2))
sketch5.addConstraint(Sketcher.Constraint("Vertical", 3))
sketch5.addConstraint(Sketcher.Constraint("Vertical", 4))
sketch5.addConstraint(Sketcher.Constraint("Horizontal", 5))
sketch5.addConstraint(Sketcher.Constraint("Vertical", 6))
sketch5.addConstraint(Sketcher.Constraint("Horizontal", 7))
sketch5.addConstraint(Sketcher.Constraint("Horizontal", 8))
sketch5.addConstraint(Sketcher.Constraint("Vertical", 9))
sketch5.addConstraint(Sketcher.Constraint("Horizontal", 10))
sketch5.addConstraint(Sketcher.Constraint("Vertical", 11))
sketch5.addConstraint(Sketcher.Constraint("Horizontal", 12))
sketch5.addConstraint(Sketcher.Constraint("Vertical", 13))
sketch5.addConstraint(Sketcher.Constraint("Horizontal", 14))
sketch5.addConstraint(Sketcher.Constraint("Vertical", 15))
sketch5.addConstraint(Sketcher.Constraint("Symmetric", 0, 2, 4, 2, -1))
sketch5.addConstraint(Sketcher.Constraint("Symmetric", 2, 2, 6, 2, -1))
sketch5.addConstraint(Sketcher.Constraint("Symmetric", 9, 2, 12, 2, -1))
sketch5.addConstraint(Sketcher.Constraint("Symmetric", 11, 2, 14, 2, -1))
sketch5.addConstraint(Sketcher.Constraint("Horizontal", 5, 2, 9, 2))
sketch5.addConstraint(Sketcher.Constraint("DistanceX", 0, 2, 0, 1, Q("2.8 mm")))
sketch5.addConstraint(Sketcher.Constraint("DistanceY", 1, 1, 1, 2, Q("1.6 mm")))
sketch5.addConstraint(Sketcher.Constraint("DistanceY", 9, 1, 9, 2, Q("1.4 mm")))
sketch5.addConstraint(Sketcher.Constraint("DistanceX", 8, 2, 8, 1, Q("1.75 mm")))
sketch5.addConstraint(Sketcher.Constraint("DistanceY", 1, 2, 4, 2, Q("7 mm")))
sketch5.addConstraint(Sketcher.Constraint("DistanceX", 10, 2, -1, 1, Q("6.9 mm")))
sketch5.addConstraint(Sketcher.Constraint("DistanceX", 8, 2, 7, 2, Q("13.8 mm")))
pad4 = body.newObject("PartDesign::Pad", "Pad003")
pad4.Profile = sketch5
pad4.Length = 1.9
pad4.Reversed = True

# Sketch on XZ plane
sketch6 = body.newObject("Sketcher::SketchObject", "Sketch005")
sketch6.AttachmentSupport = (doc.getObject("XZ_Plane"), [""])
sketch6.MapMode = "FlatFace"
add_polygon(sketch6, [(-10.6, 2.5), (-8.65, 2.5), (-8.65, -2.5), (-10.6, -2.5)])  # lines 0-3
add_polygon(sketch6, [(10.6, 2.5), (10.6, -2.5), (7.95, -2.5), (7.95, 2.5)])  # lines 4-7
sketch6.addConstraint(Sketcher.Constraint("Horizontal", 0))
sketch6.addConstraint(Sketcher.Constraint("Vertical", 1))
sketch6.addConstraint(Sketcher.Constraint("Horizontal", 2))
sketch6.addConstraint(Sketcher.Constraint("Vertical", 3))
sketch6.addConstraint(Sketcher.Constraint("Vertical", 4))
sketch6.addConstraint(Sketcher.Constraint("Horizontal", 5))
sketch6.addConstraint(Sketcher.Constraint("Vertical", 6))
sketch6.addConstraint(Sketcher.Constraint("Horizontal", 7))
sketch6.addConstraint(Sketcher.Constraint("Symmetric", 3, 2, 4, 2, -1, 1))
sketch6.addConstraint(Sketcher.Constraint("Horizontal", 2, 2, 4, 2))
sketch6.addConstraint(Sketcher.Constraint("Horizontal", 3, 2, 6, 2))
sketch6.addConstraint(Sketcher.Constraint("DistanceY", 1, 2, 1, 1, Q("5 mm")))
sketch6.addConstraint(Sketcher.Constraint("DistanceX", 0, 1, 0, 2, Q("1.95 mm")))
sketch6.addConstraint(Sketcher.Constraint("DistanceX", 5, 2, 5, 1, Q("2.65 mm")))
sketch6.addConstraint(Sketcher.Constraint("DistanceX", 2, 2, -1, 1, Q("10.6 mm")))
pad5 = body.newObject("PartDesign::Pad", "Pad004")
pad5.Profile = sketch6
pad5.Length = 1
pad5.Reversed = True

# Sketch on XZ plane
sketch7 = body.newObject("Sketcher::SketchObject", "Sketch006")
sketch7.AttachmentSupport = (doc.getObject("XZ_Plane"), [""])
sketch7.MapMode = "FlatFace"
sketch7.AttachmentOffset = App.Placement(App.Vector(0, 0, -4.7), App.Rotation())
sketch7.addGeometry(Part.Circle(App.Vector(5.9, -3.415, 0), App.Vector(0, 0, 1), 0.45), False)
sketch7.addGeometry(Part.Circle(App.Vector(-7.64, 3.415, 0), App.Vector(0, 0, 1), 0.45), False)
sketch7.addConstraint(Sketcher.Constraint("Equal", 0, 1))
sketch7.addConstraint(Sketcher.Constraint("Diameter", 0, Q("0.9 mm")))
sketch7.addConstraint(Sketcher.Constraint("DistanceX", -1, 1, 0, 3, Q("5.9 mm")))
sketch7.addConstraint(Sketcher.Constraint("DistanceX", 1, 3, 0, 3, Q("13.54 mm")))
sketch7.addConstraint(Sketcher.Constraint("DistanceY", 0, 3, 1, 3, Q("6.83 mm")))
sketch7.addConstraint(Sketcher.Constraint("DistanceY", 0, 3, -1, 1, Q("3.415 mm")))
pad6 = body.newObject("PartDesign::Pad", "Pad005")
pad6.Profile = sketch7
pad6.Length = 1.75
pad6.Reversed = True

# Sketch on XY plane
sketch8 = body.newObject("Sketcher::SketchObject", "Sketch007")
sketch8.AttachmentSupport = (doc.getObject("XY_Plane"), [""])
sketch8.MapMode = "FlatFace"
add_polygon(sketch8, [(3.725, -2.7), (2.1307, -0.8), (4.4165, -0.8)])  # lines 0-2
sketch8.addConstraint(Sketcher.Constraint("Horizontal", 1))
sketch8.addConstraint(Sketcher.Constraint("DistanceY", 0, 2, -1, 1, Q("0.8 mm")))
sketch8.addConstraint(Sketcher.Constraint("Angle", 0, Q("130.0002 deg")))
sketch8.addConstraint(Sketcher.Constraint("Angle", 2, Q("-109.9988 deg")))
sketch8.addConstraint(Sketcher.Constraint("DistanceY", 2, 2, -1, 1, Q("2.7 mm")))
sketch8.addConstraint(Sketcher.Constraint("DistanceX", -1, 1, 2, 2, Q("3.725 mm")))
pad7 = body.newObject("PartDesign::Pad", "Pad006")
pad7.Profile = sketch8
pad7.Length = 4
pad7.Midplane = True

# Sketch on XZ plane
sketch9 = body.newObject("Sketcher::SketchObject", "Sketch008")
sketch9.AttachmentSupport = (doc.getObject("XZ_Plane"), [""])
sketch9.MapMode = "FlatFace"
sketch9.AttachmentOffset = App.Placement(App.Vector(0, 0, 0.8), App.Rotation())
sketch9.addGeometry(Part.Circle(App.Vector(-1.225, 0, 0), App.Vector(0, 0, 1), 1.375), False)
sketch9.addConstraint(Sketcher.Constraint("PointOnObject", 0, 3, -1))
sketch9.addConstraint(Sketcher.Constraint("Diameter", 0, Q("2.75 mm")))
sketch9.addConstraint(Sketcher.Constraint("DistanceX", 0, 3, -1, 1, Q("1.225 mm")))
pad8 = body.newObject("PartDesign::Pad", "Pad007")
pad8.Profile = sketch9
pad8.Length = 0.2

doc.recompute()
